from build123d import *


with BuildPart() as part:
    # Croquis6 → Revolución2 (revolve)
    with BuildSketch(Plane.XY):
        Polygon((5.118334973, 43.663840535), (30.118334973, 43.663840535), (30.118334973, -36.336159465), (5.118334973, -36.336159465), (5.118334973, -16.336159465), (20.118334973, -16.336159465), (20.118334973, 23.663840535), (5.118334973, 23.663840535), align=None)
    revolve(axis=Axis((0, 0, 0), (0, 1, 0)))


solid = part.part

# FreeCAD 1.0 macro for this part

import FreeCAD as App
import Part
import Sketcher

V = App.Vector
Q = App.Units.Quantity

doc = App.newDocument("Part")
body = doc.addObject("PartDesign::Body", "Body")

# Sketch on XY plane
sketch1 = body.newObject("Sketcher::SketchObject", "Sketch")
sketch1.AttachmentSupport = (doc.getObject("XY_Plane"), [""])
sketch1.MapMode = "FlatFace"
sketch1.addGeometry([
    Part.LineSegment(V(30, 44, 0), V(5, 44, 0)),  # 0
    Part.LineSegment(V(5, 44, 0), V(5, 24, 0)),  # 1
    Part.LineSegment(V(5, 24, 0), V(20, 24, 0)),  # 2
    Part.LineSegment(V(20, 24, 0), V(20, -16, 0)),  # 3
    Part.LineSegment(V(20, -16, 0), V(5, -16, 0)),  # 4
    Part.LineSegment(V(5, -16, 0), V(5, -36, 0)),  # 5
    Part.LineSegment(V(5, -36, 0), V(30, -36, 0)),  # 6
    Part.LineSegment(V(30, -36, 0), V(30, 44, 0)),  # 7
], False)
sketch1.addConstraint([
    Sketcher.Constraint("Coincident", 0, 2, 1, 1),
    Sketcher.Constraint("Coincident", 1, 2, 2, 1),
    Sketcher.Constraint("Coincident", 2, 2, 3, 1),
    Sketcher.Constraint("Coincident", 3, 2, 4, 1),
    Sketcher.Constraint("Coincident", 4, 2, 5, 1),
    Sketcher.Constraint("Coincident", 5, 2, 6, 1),
    Sketcher.Constraint("Coincident", 6, 2, 7, 1),
    Sketcher.Constraint("Coincident", 7, 2, 0, 1),
    Sketcher.Constraint("Horizontal", 0),
    Sketcher.Constraint("Vertical", 1),
    Sketcher.Constraint("Horizontal", 2),
    Sketcher.Constraint("Vertical", 3),
    Sketcher.Constraint("Horizontal", 4),
    Sketcher.Constraint("Vertical", 5),
    Sketcher.Constraint("Horizontal", 6),
    Sketcher.Constraint("Vertical", 7),
    Sketcher.Constraint("Vertical", 1, 2, 4, 2),
    Sketcher.Constraint("Equal", 1, 5),
    Sketcher.Constraint("DistanceX", 0, 2, 0, 1, Q("25 mm")),
    Sketcher.Constraint("DistanceX", 2, 1, 2, 2, Q("15 mm")),
    Sketcher.Constraint("DistanceY", 1, 2, 1, 1, Q("20 mm")),
    Sketcher.Constraint("DistanceY", 3, 2, 3, 1, Q("40 mm")),
    Sketcher.Constraint("DistanceY", -1, 1, 0, 2, Q("43.663841 mm")),
    Sketcher.Constraint("DistanceX", -1, 1, 0, 2, Q("5.118335 mm")),
])
revolution = body.newObject("PartDesign::Revolution", "Revolution")
revolution.Profile = sketch1
revolution.ReferenceAxis = (sketch1, ["V_Axis"])
revolution.Angle = 360

doc.recompute()
